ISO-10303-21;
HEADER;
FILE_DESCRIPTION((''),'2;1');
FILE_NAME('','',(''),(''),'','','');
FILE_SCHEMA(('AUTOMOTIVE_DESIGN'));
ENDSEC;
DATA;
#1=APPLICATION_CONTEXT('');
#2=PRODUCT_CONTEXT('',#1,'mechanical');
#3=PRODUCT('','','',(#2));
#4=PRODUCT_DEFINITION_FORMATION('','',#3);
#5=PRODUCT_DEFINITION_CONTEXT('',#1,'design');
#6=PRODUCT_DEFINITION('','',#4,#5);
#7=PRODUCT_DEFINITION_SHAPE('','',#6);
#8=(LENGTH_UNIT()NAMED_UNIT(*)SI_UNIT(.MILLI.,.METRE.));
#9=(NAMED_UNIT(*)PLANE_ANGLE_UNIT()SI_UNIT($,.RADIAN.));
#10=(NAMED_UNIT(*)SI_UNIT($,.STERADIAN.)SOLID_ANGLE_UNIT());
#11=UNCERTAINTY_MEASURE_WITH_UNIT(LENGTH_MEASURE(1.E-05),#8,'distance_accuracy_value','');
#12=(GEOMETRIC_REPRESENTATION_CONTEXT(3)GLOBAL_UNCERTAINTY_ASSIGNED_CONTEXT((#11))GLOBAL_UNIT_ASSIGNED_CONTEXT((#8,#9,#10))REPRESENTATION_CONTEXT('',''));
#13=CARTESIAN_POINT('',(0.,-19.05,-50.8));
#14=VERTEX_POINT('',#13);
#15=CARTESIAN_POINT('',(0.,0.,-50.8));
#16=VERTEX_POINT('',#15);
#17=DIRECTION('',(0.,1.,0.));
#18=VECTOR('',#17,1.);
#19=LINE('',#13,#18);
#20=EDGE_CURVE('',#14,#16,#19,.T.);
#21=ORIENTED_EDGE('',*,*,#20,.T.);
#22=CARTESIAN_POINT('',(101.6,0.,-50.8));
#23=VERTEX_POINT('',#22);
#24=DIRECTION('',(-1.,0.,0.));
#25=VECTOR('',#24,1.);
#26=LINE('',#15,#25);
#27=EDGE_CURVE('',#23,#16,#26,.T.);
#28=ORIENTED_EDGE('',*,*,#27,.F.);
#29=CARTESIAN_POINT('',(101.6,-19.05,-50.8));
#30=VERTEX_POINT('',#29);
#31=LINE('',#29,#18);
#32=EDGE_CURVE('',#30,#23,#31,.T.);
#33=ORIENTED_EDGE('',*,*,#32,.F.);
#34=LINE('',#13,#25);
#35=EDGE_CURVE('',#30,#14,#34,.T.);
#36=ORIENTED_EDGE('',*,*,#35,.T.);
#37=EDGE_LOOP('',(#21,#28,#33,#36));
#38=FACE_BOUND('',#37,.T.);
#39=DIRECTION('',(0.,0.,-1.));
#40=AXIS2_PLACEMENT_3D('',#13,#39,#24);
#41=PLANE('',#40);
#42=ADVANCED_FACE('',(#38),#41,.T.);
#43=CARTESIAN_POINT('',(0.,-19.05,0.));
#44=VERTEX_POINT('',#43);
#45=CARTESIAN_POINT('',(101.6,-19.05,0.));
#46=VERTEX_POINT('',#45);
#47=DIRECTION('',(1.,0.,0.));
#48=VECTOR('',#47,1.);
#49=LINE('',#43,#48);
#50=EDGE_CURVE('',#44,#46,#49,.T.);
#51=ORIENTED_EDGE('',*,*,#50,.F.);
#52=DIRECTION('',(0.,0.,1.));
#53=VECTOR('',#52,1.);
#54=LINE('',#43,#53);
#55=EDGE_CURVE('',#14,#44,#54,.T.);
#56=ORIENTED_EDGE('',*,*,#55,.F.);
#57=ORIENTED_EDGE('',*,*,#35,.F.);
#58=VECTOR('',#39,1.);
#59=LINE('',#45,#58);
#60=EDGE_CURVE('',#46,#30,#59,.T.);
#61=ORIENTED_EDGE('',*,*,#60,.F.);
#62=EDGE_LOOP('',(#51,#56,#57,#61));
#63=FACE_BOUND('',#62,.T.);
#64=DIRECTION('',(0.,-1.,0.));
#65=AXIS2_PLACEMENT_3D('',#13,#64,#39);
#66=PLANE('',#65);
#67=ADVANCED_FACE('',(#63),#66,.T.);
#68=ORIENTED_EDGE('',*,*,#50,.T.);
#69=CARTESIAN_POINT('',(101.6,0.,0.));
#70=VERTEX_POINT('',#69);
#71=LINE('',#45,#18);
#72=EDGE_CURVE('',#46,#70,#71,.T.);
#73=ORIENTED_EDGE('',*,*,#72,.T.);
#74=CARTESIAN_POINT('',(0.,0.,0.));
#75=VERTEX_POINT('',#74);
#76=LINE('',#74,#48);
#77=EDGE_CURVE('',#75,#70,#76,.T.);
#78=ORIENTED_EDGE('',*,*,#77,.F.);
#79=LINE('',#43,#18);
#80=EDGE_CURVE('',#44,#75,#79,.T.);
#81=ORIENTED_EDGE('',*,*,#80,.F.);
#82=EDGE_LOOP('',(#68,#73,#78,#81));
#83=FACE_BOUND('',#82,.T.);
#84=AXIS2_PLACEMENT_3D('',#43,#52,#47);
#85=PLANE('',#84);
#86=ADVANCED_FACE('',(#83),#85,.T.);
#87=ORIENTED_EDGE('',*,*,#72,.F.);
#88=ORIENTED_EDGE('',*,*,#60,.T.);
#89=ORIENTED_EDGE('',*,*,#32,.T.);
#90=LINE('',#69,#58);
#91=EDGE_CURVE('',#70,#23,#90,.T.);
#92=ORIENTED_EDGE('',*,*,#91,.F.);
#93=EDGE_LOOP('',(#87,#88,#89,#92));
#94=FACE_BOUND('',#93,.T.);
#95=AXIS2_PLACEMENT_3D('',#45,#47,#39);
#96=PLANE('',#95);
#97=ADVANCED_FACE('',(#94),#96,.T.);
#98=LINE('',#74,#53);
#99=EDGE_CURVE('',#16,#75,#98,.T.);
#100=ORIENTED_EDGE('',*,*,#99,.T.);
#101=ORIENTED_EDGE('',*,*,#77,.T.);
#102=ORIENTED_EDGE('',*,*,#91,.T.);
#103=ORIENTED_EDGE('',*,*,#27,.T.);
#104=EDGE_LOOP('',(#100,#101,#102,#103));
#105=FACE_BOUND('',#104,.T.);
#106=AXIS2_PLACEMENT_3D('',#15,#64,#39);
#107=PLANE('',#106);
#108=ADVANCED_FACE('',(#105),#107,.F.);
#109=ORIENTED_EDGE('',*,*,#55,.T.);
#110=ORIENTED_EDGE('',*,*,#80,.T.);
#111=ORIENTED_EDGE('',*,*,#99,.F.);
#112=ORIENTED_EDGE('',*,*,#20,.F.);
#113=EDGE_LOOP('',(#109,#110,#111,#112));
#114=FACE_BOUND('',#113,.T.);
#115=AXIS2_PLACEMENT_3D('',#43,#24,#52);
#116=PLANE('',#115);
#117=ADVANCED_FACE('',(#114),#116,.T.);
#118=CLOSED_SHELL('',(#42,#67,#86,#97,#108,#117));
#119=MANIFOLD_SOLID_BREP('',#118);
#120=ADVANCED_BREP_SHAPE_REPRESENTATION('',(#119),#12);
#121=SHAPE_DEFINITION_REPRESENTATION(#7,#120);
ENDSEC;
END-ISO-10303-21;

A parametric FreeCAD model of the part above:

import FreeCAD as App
import Part
import Sketcher
Q = App.Units.Quantity


def add_polygon(sketch, points):
    """Adds a closed chain of lines whose ends are joined by coincident constraints."""
    first, n = sketch.GeometryCount, len(points)
    for a, b in zip(points, points[1:] + points[:1]):
        sketch.addGeometry(Part.LineSegment(App.Vector(*a, 0), App.Vector(*b, 0)), False)
    for i in range(n):
        sketch.addConstraint(Sketcher.Constraint("Coincident", first + i, 2, first + (i + 1) % n, 1))

doc = App.newDocument("Part")
body = doc.addObject("PartDesign::Body", "Body")

sketch1 = body.newObject("Sketcher::SketchObject", "Sketch")
sketch1.AttachmentSupport = (doc.getObject("XZ_Plane"), [""])
sketch1.MapMode = "FlatFace"
add_polygon(sketch1, [(0, -51), (0, 0), (102, 0), (102, -51)])
sketch1.addConstraint(Sketcher.Constraint("Vertical", 0))
sketch1.addConstraint(Sketcher.Constraint("Horizontal", 1))
sketch1.addConstraint(Sketcher.Constraint("Vertical", 2))
sketch1.addConstraint(Sketcher.Constraint("Horizontal", 3))
sketch1.addConstraint(Sketcher.Constraint("Coincident", 0, 2, -1, 1))
sketch1.addConstraint(Sketcher.Constraint("DistanceX", 1, 1, 1, 2, Q("4 in")))
sketch1.addConstraint(Sketcher.Constraint("DistanceY", 0, 1, 0, 2, Q("2 in")))
pad1 = body.newObject("PartDesign::Pad", "Pad")
pad1.Profile = sketch1
pad1.Length = Q("0.75 in")

doc.recompute()
